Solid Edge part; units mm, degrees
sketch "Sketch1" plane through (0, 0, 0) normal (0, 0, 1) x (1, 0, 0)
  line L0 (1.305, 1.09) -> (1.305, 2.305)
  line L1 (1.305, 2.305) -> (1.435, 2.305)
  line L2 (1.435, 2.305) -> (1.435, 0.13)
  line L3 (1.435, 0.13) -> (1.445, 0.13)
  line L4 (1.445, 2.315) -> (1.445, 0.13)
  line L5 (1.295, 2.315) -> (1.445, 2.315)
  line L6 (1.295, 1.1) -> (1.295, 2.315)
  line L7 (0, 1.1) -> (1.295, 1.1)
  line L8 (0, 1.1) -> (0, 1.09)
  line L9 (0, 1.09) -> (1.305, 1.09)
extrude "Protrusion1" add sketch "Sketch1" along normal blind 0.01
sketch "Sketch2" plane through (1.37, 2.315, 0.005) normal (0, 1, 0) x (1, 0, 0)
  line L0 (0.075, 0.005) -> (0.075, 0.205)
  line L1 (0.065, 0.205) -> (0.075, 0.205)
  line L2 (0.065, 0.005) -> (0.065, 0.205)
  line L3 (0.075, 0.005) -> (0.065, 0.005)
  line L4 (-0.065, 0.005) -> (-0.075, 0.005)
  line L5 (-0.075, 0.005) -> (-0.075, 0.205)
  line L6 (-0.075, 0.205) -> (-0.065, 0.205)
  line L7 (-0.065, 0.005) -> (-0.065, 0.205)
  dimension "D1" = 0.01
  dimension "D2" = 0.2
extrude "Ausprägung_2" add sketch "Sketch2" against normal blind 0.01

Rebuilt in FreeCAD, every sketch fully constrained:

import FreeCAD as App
import Part
import Sketcher
from FreeCAD import Vector
Q = App.Units.Quantity

doc = App.newDocument("Part")
body = doc.addObject("PartDesign::Body", "Body")

# Sketch on XY plane
sketch1 = doc.addObject("Sketcher::SketchObject", "Sketch")
body.addObject(sketch1)
sketch1.AttachmentSupport = (doc.XY_Plane, [""])
sketch1.MapMode = "FlatFace"
sketch1.addGeometry(Part.LineSegment(Vector(0, 1.09, 0), Vector(1.305, 1.09, 0)), False)
sketch1.addGeometry(Part.LineSegment(Vector(1.305, 1.09, 0), Vector(1.305, 2.305, 0)), False)
sketch1.addGeometry(Part.LineSegment(Vector(1.305, 2.305, 0), Vector(1.435, 2.305, 0)), False)
sketch1.addGeometry(Part.LineSegment(Vector(1.435, 2.305, 0), Vector(1.435, 0.13, 0)), False)
sketch1.addGeometry(Part.LineSegment(Vector(1.435, 0.13, 0), Vector(1.445, 0.13, 0)), False)
sketch1.addGeometry(Part.LineSegment(Vector(1.445, 0.13, 0), Vector(1.445, 2.315, 0)), False)
sketch1.addGeometry(Part.LineSegment(Vector(1.445, 2.315, 0), Vector(1.295, 2.315, 0)), False)
sketch1.addGeometry(Part.LineSegment(Vector(1.295, 2.315, 0), Vector(1.295, 1.1, 0)), False)
sketch1.addGeometry(Part.LineSegment(Vector(1.295, 1.1, 0), Vector(0, 1.1, 0)), False)
sketch1.addGeometry(Part.LineSegment(Vector(0, 1.1, 0), Vector(0, 1.09, 0)), False)
sketch1.addConstraint(Sketcher.Constraint("Coincident", 0, 2, 1, 1))
sketch1.addConstraint(Sketcher.Constraint("Coincident", 1, 2, 2, 1))
sketch1.addConstraint(Sketcher.Constraint("Coincident", 2, 2, 3, 1))
sketch1.addConstraint(Sketcher.Constraint("Coincident", 3, 2, 4, 1))
sketch1.addConstraint(Sketcher.Constraint("Coincident", 4, 2, 5, 1))
sketch1.addConstraint(Sketcher.Constraint("Coincident", 5, 2, 6, 1))
sketch1.addConstraint(Sketcher.Constraint("Coincident", 6, 2, 7, 1))
sketch1.addConstraint(Sketcher.Constraint("Coincident", 7, 2, 8, 1))
sketch1.addConstraint(Sketcher.Constraint("Coincident", 8, 2, 9, 1))
sketch1.addConstraint(Sketcher.Constraint("Coincident", 9, 2, 0, 1))
sketch1.addConstraint(Sketcher.Constraint("Horizontal", 0))
sketch1.addConstraint(Sketcher.Constraint("Vertical", 1))
sketch1.addConstraint(Sketcher.Constraint("Horizontal", 2))
sketch1.addConstraint(Sketcher.Constraint("Vertical", 3))
sketch1.addConstraint(Sketcher.Constraint("Horizontal", 4))
sketch1.addConstraint(Sketcher.Constraint("Vertical", 5))
sketch1.addConstraint(Sketcher.Constraint("Horizontal", 6))
sketch1.addConstraint(Sketcher.Constraint("Vertical", 7))
sketch1.addConstraint(Sketcher.Constraint("Horizontal", 8))
sketch1.addConstraint(Sketcher.Constraint("Vertical", 9))
sketch1.addConstraint(Sketcher.Constraint("PointOnObject", 8, 2, -2))
sketch1.addConstraint(Sketcher.Constraint("Equal", 1, 7))
sketch1.addConstraint(Sketcher.Constraint("Equal", 4, 9))
sketch1.addConstraint(Sketcher.Constraint("DistanceX", 2, 1, 2, 2, Q("0.13 mm")))
sketch1.addConstraint(Sketcher.Constraint("DistanceX", 4, 1, 4, 2, Q("0.01 mm")))
sketch1.addConstraint(Sketcher.Constraint("DistanceX", 6, 2, 6, 1, Q("0.15 mm")))
sketch1.addConstraint(Sketcher.Constraint("DistanceY", -1, 1, 7, 2, Q("1.1 mm")))
sketch1.addConstraint(Sketcher.Constraint("DistanceX", 0, 1, 0, 2, Q("1.305 mm")))
sketch1.addConstraint(Sketcher.Constraint("DistanceY", 1, 1, 1, 2, Q("1.215 mm")))
sketch1.addConstraint(Sketcher.Constraint("DistanceY", 3, 2, 3, 1, Q("2.175 mm")))
pad1 = doc.addObject("PartDesign::Pad", "Pad")
body.addObject(pad1)
pad1.Profile = sketch1
pad1.Length = 0.01

# Sketch on XZ plane
sketch2 = doc.addObject("Sketcher::SketchObject", "Sketch001")
body.addObject(sketch2)
sketch2.AttachmentSupport = (doc.XZ_Plane, [""])
sketch2.MapMode = "FlatFace"
sketch2.AttachmentOffset = App.Placement(Vector(0, 0, -2.315), App.Rotation())
sketch2.addGeometry(Part.LineSegment(Vector(1.435, 0, 0), Vector(1.445, 0, 0)), False)
sketch2.addGeometry(Part.LineSegment(Vector(1.445, 0, 0), Vector(1.445, -0.2, 0)), False)
sketch2.addGeometry(Part.LineSegment(Vector(1.445, -0.2, 0), Vector(1.435, -0.2, 0)), False)
sketch2.addGeometry(Part.LineSegment(Vector(1.435, -0.2, 0), Vector(1.435, 0, 0)), False)
sketch2.addGeometry(Part.LineSegment(Vector(1.295, 0, 0), Vector(1.305, 0, 0)), False)
sketch2.addGeometry(Part.LineSegment(Vector(1.305, 0, 0), Vector(1.305, -0.2, 0)), False)
sketch2.addGeometry(Part.LineSegment(Vector(1.305, -0.2, 0), Vector(1.295, -0.2, 0)), False)
sketch2.addGeometry(Part.LineSegment(Vector(1.295, -0.2, 0), Vector(1.295, 0, 0)), False)
sketch2.addConstraint(Sketcher.Constraint("Coincident", 0, 2, 1, 1))
sketch2.addConstraint(Sketcher.Constraint("Coincident", 1, 2, 2, 1))
sketch2.addConstraint(Sketcher.Constraint("Coincident", 2, 2, 3, 1))
sketch2.addConstraint(Sketcher.Constraint("Coincident", 3, 2, 0, 1))
sketch2.addConstraint(Sketcher.Constraint("Coincident", 4, 2, 5, 1))
sketch2.addConstraint(Sketcher.Constraint("Coincident", 5, 2, 6, 1))
sketch2.addConstraint(Sketcher.Constraint("Coincident", 6, 2, 7, 1))
sketch2.addConstraint(Sketcher.Constraint("Coincident", 7, 2, 4, 1))
sketch2.addConstraint(Sketcher.Constraint("Horizontal", 0))
sketch2.addConstraint(Sketcher.Constraint("Vertical", 1))
sketch2.addConstraint(Sketcher.Constraint("Horizontal", 2))
sketch2.addConstraint(Sketcher.Constraint("Vertical", 3))
sketch2.addConstraint(Sketcher.Constraint("Horizontal", 4))
sketch2.addConstraint(Sketcher.Constraint("Vertical", 5))
sketch2.addConstraint(Sketcher.Constraint("Horizontal", 6))
sketch2.addConstraint(Sketcher.Constraint("Vertical", 7))
sketch2.addConstraint(Sketcher.Constraint("PointOnObject", 0, 2, -1))
sketch2.addConstraint(Sketcher.Constraint("PointOnObject", 4, 2, -1))
sketch2.addConstraint(Sketcher.Constraint("Horizontal", 2, 2, 5, 2))
sketch2.addConstraint(Sketcher.Constraint("Equal", 2, 4))
sketch2.addConstraint(Sketcher.Constraint("DistanceY", 1, 2, 1, 1, Q("0.2 mm")))
sketch2.addConstraint(Sketcher.Constraint("DistanceX", 0, 1, 0, 2, Q("0.01 mm")))
sketch2.addConstraint(Sketcher.Constraint("DistanceX", 4, 2, 3, 2, Q("0.13 mm")))
sketch2.addConstraint(Sketcher.Constraint("DistanceX", -1, 1, 0, 2, Q("1.445 mm")))
pad2 = doc.addObject("PartDesign::Pad", "Pad001")
body.addObject(pad2)
pad2.Profile = sketch2
pad2.Length = 0.01

doc.recompute()
